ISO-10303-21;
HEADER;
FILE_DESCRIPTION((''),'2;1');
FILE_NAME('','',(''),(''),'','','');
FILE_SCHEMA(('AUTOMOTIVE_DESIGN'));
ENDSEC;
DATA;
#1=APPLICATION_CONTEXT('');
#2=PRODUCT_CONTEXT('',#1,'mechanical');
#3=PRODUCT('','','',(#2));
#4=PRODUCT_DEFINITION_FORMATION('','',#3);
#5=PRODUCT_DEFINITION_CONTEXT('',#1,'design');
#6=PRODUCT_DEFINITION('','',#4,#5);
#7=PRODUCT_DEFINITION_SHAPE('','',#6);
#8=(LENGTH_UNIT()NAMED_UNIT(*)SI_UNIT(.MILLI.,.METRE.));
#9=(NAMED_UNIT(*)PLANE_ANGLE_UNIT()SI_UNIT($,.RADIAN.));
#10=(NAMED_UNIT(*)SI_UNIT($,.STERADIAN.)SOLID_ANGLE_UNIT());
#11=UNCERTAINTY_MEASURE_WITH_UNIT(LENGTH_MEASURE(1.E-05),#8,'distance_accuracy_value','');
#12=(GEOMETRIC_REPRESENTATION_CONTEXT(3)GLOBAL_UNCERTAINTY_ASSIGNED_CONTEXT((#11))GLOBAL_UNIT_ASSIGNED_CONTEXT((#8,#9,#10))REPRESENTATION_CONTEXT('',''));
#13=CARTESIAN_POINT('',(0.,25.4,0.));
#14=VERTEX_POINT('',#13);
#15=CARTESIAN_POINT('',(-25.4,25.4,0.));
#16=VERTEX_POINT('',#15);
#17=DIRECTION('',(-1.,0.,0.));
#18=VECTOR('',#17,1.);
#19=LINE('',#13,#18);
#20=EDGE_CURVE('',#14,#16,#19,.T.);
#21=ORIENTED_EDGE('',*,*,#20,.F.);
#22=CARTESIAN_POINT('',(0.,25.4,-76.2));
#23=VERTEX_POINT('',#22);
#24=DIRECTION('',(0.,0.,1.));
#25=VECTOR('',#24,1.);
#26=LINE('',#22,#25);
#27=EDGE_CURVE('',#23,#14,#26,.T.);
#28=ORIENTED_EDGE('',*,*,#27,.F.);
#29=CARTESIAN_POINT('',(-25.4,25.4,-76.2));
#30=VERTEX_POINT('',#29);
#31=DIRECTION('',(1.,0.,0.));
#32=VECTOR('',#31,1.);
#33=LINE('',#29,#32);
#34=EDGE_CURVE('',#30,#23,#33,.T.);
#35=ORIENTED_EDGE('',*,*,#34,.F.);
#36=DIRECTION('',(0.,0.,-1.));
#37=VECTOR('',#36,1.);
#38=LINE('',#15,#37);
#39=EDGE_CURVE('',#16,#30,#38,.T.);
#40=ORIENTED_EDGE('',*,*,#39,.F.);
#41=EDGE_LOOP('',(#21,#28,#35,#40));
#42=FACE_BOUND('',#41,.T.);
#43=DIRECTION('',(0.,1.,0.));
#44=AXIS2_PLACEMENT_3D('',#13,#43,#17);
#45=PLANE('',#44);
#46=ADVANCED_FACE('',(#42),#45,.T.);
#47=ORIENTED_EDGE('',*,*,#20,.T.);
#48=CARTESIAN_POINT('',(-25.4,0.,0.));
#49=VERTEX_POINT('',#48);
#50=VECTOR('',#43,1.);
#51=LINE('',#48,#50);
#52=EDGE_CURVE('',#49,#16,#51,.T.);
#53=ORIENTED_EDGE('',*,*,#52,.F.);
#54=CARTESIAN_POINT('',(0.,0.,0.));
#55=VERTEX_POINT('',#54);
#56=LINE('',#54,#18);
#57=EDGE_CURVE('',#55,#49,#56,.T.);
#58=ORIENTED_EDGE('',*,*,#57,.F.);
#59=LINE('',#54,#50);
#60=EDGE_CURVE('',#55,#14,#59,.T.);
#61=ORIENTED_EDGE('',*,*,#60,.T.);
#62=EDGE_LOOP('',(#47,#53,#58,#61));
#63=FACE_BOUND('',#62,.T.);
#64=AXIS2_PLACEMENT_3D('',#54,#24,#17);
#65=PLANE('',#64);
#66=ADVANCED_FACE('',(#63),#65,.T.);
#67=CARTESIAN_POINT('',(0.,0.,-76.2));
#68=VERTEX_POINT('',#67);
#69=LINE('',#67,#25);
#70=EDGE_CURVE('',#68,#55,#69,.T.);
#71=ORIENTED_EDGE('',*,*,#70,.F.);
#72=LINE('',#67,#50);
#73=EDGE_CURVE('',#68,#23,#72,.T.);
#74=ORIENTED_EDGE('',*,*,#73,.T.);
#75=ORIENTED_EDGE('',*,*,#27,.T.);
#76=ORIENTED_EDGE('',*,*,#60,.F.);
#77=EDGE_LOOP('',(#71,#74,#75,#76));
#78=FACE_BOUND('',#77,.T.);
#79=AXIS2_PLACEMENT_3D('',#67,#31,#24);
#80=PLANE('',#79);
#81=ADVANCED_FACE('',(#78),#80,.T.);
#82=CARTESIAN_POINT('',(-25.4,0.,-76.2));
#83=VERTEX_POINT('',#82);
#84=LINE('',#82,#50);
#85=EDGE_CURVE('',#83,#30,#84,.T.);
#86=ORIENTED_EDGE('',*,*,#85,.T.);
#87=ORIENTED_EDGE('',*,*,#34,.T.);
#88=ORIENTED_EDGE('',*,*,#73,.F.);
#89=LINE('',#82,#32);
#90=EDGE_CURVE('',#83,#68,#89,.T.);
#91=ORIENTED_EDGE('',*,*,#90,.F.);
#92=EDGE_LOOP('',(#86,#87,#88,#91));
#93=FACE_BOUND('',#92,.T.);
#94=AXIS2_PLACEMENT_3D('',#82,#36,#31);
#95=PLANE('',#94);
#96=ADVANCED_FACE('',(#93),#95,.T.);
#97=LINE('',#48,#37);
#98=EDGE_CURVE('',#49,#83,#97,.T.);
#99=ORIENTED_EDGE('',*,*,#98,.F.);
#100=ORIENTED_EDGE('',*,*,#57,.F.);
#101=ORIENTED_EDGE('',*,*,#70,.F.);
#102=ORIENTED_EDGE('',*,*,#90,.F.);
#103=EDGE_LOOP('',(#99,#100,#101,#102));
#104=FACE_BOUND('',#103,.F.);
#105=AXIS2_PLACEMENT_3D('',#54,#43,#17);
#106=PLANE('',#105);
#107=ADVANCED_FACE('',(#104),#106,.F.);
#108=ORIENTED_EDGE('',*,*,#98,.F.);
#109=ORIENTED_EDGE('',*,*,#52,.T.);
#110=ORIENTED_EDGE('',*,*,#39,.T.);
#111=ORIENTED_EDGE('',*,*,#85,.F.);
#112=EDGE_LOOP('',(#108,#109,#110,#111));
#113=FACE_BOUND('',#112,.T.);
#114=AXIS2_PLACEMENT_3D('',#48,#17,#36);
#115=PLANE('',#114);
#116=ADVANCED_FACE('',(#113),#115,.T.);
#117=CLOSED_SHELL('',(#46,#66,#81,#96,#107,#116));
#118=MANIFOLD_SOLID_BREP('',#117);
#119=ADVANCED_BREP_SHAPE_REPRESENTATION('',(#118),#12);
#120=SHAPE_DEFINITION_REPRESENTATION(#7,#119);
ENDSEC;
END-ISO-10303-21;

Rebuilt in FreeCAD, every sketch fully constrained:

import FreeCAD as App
import Part
import Sketcher
from FreeCAD import Vector
Q = App.Units.Quantity

doc = App.newDocument("Part")
body = doc.addObject("PartDesign::Body", "Body")

# Sketch on XZ plane
sketch1 = body.newObject("Sketcher::SketchObject", "Sketch")
sketch1.AttachmentSupport = (doc.getObject("XZ_Plane"), [""])
sketch1.MapMode = "FlatFace"
sketch1.addGeometry(Part.LineSegment(Vector(-25, 0, 0), Vector(0, 0, 0)), False)
sketch1.addGeometry(Part.LineSegment(Vector(0, 0, 0), Vector(0, -76, 0)), False)
sketch1.addGeometry(Part.LineSegment(Vector(0, -76, 0), Vector(-25, -76, 0)), False)
sketch1.addGeometry(Part.LineSegment(Vector(-25, -76, 0), Vector(-25, 0, 0)), False)
sketch1.addConstraint(Sketcher.Constraint("Coincident", 0, 2, 1, 1))
sketch1.addConstraint(Sketcher.Constraint("Coincident", 1, 2, 2, 1))
sketch1.addConstraint(Sketcher.Constraint("Coincident", 2, 2, 3, 1))
sketch1.addConstraint(Sketcher.Constraint("Coincident", 3, 2, 0, 1))
sketch1.addConstraint(Sketcher.Constraint("Horizontal", 0))
sketch1.addConstraint(Sketcher.Constraint("Vertical", 1))
sketch1.addConstraint(Sketcher.Constraint("Horizontal", 2))
sketch1.addConstraint(Sketcher.Constraint("Vertical", 3))
sketch1.addConstraint(Sketcher.Constraint("Coincident", 0, 2, -1, 1))
sketch1.addConstraint(Sketcher.Constraint("DistanceX", 0, 1, 0, 2, Q("1 in")))
sketch1.addConstraint(Sketcher.Constraint("DistanceY", 1, 2, 1, 1, Q("3 in")))
pad1 = body.newObject("PartDesign::Pad", "Pad")
pad1.Profile = sketch1
pad1.Length = Q("1 in")
pad1.Reversed = True

doc.recompute()
